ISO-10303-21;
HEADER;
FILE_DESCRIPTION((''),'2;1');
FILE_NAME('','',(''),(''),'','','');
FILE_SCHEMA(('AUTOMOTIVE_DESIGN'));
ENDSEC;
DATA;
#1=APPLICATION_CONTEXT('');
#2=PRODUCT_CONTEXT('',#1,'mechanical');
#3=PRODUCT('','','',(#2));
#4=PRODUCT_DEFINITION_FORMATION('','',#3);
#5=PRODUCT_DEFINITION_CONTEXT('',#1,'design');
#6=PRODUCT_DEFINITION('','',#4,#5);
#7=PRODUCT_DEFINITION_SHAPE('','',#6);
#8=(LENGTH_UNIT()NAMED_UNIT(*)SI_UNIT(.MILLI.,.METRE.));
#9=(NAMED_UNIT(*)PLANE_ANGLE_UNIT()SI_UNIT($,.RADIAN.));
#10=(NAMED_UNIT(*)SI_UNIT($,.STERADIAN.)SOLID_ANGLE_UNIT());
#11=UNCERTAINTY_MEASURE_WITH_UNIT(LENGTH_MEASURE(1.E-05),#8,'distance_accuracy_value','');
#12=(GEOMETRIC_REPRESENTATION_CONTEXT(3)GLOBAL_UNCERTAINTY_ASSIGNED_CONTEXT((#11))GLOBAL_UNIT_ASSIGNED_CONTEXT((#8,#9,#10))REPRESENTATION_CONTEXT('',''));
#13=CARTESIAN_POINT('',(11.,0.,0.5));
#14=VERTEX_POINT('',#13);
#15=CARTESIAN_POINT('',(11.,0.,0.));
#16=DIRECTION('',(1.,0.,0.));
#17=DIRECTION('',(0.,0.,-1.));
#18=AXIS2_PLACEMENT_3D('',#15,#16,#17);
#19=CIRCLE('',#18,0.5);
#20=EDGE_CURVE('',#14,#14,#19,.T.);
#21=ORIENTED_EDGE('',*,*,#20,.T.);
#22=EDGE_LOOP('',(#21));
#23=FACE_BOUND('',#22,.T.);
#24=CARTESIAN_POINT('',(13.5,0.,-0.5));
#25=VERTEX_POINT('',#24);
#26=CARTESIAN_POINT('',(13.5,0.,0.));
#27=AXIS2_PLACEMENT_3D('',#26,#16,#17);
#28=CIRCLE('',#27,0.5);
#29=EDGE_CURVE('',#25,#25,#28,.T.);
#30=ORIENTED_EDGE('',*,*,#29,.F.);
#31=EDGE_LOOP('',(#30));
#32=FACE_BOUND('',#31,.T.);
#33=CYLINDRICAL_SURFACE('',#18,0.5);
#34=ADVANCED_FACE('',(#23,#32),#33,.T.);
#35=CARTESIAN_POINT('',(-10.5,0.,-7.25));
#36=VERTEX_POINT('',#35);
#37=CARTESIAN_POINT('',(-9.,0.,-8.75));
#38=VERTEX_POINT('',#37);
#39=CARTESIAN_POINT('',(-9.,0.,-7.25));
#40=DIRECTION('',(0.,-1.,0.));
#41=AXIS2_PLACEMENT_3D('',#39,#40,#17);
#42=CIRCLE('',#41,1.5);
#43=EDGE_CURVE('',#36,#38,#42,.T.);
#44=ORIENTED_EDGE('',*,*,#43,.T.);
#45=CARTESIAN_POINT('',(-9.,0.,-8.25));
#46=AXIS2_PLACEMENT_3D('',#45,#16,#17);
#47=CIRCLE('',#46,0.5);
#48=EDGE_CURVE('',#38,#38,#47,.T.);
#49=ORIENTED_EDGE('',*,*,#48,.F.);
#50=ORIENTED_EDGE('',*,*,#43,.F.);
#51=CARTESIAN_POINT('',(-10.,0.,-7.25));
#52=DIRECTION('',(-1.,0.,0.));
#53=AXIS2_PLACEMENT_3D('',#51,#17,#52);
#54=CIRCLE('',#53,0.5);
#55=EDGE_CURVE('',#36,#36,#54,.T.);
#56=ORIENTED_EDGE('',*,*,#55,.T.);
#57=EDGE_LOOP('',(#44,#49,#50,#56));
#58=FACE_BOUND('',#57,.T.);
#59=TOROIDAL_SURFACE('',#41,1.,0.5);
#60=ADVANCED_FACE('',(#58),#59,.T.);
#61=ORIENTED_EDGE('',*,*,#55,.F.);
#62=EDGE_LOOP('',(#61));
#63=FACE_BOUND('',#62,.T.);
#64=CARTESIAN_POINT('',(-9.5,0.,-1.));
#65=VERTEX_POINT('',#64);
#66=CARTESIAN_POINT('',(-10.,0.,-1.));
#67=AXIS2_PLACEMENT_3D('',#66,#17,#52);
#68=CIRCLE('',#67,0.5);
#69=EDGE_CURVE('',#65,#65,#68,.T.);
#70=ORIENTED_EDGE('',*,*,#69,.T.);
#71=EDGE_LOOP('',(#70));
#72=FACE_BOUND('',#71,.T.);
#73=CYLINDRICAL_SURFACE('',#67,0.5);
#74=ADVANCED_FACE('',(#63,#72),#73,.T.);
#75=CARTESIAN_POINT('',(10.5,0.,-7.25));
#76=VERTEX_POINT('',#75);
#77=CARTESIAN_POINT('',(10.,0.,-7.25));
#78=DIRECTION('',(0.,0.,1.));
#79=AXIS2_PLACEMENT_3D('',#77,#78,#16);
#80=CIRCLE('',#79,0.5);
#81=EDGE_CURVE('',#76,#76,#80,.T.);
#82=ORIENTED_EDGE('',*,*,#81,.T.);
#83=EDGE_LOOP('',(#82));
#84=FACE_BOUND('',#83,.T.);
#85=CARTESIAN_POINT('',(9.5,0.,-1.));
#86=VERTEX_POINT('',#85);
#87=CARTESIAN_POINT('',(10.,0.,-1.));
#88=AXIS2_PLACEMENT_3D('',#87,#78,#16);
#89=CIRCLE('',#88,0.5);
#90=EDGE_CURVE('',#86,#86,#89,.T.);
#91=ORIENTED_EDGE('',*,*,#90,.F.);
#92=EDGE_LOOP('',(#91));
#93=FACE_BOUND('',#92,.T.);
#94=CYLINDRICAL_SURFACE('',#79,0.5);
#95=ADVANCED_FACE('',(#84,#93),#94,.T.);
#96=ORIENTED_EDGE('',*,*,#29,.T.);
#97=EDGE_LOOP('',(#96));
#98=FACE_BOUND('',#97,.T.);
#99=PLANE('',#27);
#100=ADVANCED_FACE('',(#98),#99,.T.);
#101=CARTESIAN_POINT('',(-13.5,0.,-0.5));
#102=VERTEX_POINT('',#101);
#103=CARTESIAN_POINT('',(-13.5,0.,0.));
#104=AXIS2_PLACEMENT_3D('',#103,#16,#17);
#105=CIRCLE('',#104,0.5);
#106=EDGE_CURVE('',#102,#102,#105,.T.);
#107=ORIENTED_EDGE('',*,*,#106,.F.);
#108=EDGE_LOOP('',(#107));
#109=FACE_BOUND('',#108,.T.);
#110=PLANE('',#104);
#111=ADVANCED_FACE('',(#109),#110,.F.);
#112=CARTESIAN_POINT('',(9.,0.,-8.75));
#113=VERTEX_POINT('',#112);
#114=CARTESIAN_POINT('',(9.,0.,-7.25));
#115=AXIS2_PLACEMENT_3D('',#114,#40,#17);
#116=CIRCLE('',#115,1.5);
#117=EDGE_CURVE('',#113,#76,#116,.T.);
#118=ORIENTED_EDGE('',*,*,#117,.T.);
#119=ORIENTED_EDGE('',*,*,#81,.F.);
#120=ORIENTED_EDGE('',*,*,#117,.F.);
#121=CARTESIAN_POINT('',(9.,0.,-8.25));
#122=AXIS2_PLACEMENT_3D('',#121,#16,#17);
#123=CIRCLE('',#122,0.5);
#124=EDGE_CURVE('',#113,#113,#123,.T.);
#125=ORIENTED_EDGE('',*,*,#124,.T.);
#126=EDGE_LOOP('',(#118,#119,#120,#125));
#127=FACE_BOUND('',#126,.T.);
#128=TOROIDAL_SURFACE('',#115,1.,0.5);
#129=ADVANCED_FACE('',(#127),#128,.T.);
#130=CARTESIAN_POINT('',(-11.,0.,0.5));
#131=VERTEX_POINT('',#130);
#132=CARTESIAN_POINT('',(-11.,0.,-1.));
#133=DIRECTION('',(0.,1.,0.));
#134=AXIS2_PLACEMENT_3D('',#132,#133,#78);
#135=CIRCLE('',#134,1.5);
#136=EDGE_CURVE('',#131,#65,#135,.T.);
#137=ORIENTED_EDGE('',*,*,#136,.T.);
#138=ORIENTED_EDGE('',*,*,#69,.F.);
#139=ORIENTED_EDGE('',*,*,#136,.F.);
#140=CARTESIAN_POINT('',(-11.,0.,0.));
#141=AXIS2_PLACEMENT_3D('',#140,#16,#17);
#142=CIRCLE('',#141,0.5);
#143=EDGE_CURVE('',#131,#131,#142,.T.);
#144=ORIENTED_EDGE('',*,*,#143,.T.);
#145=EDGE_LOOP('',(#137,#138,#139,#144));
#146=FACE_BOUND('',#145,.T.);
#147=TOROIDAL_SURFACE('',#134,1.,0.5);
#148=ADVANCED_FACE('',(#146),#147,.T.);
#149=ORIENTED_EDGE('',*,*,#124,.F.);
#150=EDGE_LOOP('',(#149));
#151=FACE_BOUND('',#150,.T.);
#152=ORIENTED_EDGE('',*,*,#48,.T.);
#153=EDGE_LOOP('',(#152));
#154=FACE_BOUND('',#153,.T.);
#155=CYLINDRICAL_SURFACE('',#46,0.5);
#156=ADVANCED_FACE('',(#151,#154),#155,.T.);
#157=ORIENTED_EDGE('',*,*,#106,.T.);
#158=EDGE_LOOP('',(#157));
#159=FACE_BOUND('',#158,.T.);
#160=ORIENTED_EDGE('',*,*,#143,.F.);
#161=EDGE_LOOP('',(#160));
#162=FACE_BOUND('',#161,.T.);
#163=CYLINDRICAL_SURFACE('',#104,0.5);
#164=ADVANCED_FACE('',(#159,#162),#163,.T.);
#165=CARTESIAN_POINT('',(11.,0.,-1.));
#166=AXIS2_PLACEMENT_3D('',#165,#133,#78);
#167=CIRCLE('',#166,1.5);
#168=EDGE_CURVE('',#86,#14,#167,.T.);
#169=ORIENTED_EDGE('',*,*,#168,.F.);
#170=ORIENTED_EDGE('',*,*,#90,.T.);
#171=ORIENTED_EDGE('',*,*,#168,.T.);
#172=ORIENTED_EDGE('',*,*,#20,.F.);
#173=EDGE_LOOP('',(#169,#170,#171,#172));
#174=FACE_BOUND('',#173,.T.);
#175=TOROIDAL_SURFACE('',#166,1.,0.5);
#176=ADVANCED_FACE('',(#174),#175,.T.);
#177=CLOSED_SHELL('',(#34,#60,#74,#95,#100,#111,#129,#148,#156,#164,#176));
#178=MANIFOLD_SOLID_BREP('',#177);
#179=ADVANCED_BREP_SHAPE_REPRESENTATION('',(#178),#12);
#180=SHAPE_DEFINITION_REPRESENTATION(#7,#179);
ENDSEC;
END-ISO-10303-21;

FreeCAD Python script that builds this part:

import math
import FreeCAD as App
import Part
import Sketcher

V = App.Vector

doc = App.newDocument("Part")
body = doc.addObject("PartDesign::Body", "Body")

# Sketch on YZ plane
sketch1 = doc.addObject("Sketcher::SketchObject", "Sketch")
body.addObject(sketch1)
sketch1.AttachmentSupport = (doc.YZ_Plane, [""])
sketch1.MapMode = "FlatFace"
sketch1.AttachmentOffset = App.Placement(V(0, 0, -13.5), App.Rotation())
sketch1.addGeometry(Part.Circle(V(0, 0, 0), V(0, 0, 1), 0.5), False)
sketch1.addConstraint([
    Sketcher.Constraint("Coincident", 0, 3, -1, 1),
    Sketcher.Constraint("Diameter", 0, 1.0),
])

# Sketch on XZ plane
sketch2 = doc.addObject("Sketcher::SketchObject", "Sketch001")
body.addObject(sketch2)
sketch2.AttachmentSupport = (doc.XZ_Plane, [""])
sketch2.MapMode = "FlatFace"
sketch2.addGeometry([
    Part.LineSegment(V(-13.5, 0, 0), V(-11, 0, 0)),  # 0
    Part.ArcOfCircle(Part.Circle(V(-11, -1, 0), V(0, 0, 1), 1), math.radians(0), math.radians(90)),  # 1
    Part.LineSegment(V(-10, -1, 0), V(-10, -7.25, 0)),  # 2
    Part.ArcOfCircle(Part.Circle(V(-9, -7.25, 0), V(0, 0, 1), 1), math.radians(-180), math.radians(-90)),  # 3
    Part.LineSegment(V(-9, -8.25, 0), V(9, -8.25, 0)),  # 4
    Part.ArcOfCircle(Part.Circle(V(9, -7.25, 0), V(0, 0, 1), 1), math.radians(-90), math.radians(0)),  # 5
    Part.LineSegment(V(10, -7.25, 0), V(10, -1, 0)),  # 6
    Part.ArcOfCircle(Part.Circle(V(11, -1, 0), V(0, 0, 1), 1), math.radians(90), math.radians(180)),  # 7
    Part.LineSegment(V(11, 0, 0), V(13.5, 0, 0)),  # 8
], False)
sketch2.addConstraint([
    Sketcher.Constraint("Tangent", 0, 2, 1, 2),
    Sketcher.Constraint("Tangent", 1, 1, 2, 1),
    Sketcher.Constraint("Tangent", 2, 2, 3, 1),
    Sketcher.Constraint("Tangent", 3, 2, 4, 1),
    Sketcher.Constraint("Tangent", 4, 2, 5, 1),
    Sketcher.Constraint("Tangent", 5, 2, 6, 1),
    Sketcher.Constraint("Tangent", 6, 2, 7, 2),
    Sketcher.Constraint("Tangent", 7, 1, 8, 1),
    Sketcher.Constraint("Horizontal", 0),
    Sketcher.Constraint("Vertical", 2),
    Sketcher.Constraint("Horizontal", 4),
    Sketcher.Constraint("Vertical", 6),
    Sketcher.Constraint("Horizontal", 8),
    Sketcher.Constraint("Equal", 1, 3),
    Sketcher.Constraint("Equal", 3, 5),
    Sketcher.Constraint("Equal", 5, 7),
    Sketcher.Constraint("Symmetric", 0, 2, 7, 1, -1, 1),
    Sketcher.Constraint("Symmetric", 0, 1, 8, 2, -2),
    Sketcher.Constraint("Radius", 1, 1.0),
    Sketcher.Constraint("DistanceX", 4, 1, 4, 2, 18.0),
    Sketcher.Constraint("DistanceX", 0, 1, 0, 2, 2.5),
    Sketcher.Constraint("DistanceY", 2, 2, 2, 1, 6.25),
])
doc.recompute()

additivepipe = doc.addObject("PartDesign::AdditivePipe", "AdditivePipe")
body.addObject(additivepipe)
additivepipe.Profile = sketch1
additivepipe.Spine = (sketch2, ["Edge1", "Edge2", "Edge3", "Edge4", "Edge5", "Edge6", "Edge7", "Edge8", "Edge9"])

doc.recompute()
